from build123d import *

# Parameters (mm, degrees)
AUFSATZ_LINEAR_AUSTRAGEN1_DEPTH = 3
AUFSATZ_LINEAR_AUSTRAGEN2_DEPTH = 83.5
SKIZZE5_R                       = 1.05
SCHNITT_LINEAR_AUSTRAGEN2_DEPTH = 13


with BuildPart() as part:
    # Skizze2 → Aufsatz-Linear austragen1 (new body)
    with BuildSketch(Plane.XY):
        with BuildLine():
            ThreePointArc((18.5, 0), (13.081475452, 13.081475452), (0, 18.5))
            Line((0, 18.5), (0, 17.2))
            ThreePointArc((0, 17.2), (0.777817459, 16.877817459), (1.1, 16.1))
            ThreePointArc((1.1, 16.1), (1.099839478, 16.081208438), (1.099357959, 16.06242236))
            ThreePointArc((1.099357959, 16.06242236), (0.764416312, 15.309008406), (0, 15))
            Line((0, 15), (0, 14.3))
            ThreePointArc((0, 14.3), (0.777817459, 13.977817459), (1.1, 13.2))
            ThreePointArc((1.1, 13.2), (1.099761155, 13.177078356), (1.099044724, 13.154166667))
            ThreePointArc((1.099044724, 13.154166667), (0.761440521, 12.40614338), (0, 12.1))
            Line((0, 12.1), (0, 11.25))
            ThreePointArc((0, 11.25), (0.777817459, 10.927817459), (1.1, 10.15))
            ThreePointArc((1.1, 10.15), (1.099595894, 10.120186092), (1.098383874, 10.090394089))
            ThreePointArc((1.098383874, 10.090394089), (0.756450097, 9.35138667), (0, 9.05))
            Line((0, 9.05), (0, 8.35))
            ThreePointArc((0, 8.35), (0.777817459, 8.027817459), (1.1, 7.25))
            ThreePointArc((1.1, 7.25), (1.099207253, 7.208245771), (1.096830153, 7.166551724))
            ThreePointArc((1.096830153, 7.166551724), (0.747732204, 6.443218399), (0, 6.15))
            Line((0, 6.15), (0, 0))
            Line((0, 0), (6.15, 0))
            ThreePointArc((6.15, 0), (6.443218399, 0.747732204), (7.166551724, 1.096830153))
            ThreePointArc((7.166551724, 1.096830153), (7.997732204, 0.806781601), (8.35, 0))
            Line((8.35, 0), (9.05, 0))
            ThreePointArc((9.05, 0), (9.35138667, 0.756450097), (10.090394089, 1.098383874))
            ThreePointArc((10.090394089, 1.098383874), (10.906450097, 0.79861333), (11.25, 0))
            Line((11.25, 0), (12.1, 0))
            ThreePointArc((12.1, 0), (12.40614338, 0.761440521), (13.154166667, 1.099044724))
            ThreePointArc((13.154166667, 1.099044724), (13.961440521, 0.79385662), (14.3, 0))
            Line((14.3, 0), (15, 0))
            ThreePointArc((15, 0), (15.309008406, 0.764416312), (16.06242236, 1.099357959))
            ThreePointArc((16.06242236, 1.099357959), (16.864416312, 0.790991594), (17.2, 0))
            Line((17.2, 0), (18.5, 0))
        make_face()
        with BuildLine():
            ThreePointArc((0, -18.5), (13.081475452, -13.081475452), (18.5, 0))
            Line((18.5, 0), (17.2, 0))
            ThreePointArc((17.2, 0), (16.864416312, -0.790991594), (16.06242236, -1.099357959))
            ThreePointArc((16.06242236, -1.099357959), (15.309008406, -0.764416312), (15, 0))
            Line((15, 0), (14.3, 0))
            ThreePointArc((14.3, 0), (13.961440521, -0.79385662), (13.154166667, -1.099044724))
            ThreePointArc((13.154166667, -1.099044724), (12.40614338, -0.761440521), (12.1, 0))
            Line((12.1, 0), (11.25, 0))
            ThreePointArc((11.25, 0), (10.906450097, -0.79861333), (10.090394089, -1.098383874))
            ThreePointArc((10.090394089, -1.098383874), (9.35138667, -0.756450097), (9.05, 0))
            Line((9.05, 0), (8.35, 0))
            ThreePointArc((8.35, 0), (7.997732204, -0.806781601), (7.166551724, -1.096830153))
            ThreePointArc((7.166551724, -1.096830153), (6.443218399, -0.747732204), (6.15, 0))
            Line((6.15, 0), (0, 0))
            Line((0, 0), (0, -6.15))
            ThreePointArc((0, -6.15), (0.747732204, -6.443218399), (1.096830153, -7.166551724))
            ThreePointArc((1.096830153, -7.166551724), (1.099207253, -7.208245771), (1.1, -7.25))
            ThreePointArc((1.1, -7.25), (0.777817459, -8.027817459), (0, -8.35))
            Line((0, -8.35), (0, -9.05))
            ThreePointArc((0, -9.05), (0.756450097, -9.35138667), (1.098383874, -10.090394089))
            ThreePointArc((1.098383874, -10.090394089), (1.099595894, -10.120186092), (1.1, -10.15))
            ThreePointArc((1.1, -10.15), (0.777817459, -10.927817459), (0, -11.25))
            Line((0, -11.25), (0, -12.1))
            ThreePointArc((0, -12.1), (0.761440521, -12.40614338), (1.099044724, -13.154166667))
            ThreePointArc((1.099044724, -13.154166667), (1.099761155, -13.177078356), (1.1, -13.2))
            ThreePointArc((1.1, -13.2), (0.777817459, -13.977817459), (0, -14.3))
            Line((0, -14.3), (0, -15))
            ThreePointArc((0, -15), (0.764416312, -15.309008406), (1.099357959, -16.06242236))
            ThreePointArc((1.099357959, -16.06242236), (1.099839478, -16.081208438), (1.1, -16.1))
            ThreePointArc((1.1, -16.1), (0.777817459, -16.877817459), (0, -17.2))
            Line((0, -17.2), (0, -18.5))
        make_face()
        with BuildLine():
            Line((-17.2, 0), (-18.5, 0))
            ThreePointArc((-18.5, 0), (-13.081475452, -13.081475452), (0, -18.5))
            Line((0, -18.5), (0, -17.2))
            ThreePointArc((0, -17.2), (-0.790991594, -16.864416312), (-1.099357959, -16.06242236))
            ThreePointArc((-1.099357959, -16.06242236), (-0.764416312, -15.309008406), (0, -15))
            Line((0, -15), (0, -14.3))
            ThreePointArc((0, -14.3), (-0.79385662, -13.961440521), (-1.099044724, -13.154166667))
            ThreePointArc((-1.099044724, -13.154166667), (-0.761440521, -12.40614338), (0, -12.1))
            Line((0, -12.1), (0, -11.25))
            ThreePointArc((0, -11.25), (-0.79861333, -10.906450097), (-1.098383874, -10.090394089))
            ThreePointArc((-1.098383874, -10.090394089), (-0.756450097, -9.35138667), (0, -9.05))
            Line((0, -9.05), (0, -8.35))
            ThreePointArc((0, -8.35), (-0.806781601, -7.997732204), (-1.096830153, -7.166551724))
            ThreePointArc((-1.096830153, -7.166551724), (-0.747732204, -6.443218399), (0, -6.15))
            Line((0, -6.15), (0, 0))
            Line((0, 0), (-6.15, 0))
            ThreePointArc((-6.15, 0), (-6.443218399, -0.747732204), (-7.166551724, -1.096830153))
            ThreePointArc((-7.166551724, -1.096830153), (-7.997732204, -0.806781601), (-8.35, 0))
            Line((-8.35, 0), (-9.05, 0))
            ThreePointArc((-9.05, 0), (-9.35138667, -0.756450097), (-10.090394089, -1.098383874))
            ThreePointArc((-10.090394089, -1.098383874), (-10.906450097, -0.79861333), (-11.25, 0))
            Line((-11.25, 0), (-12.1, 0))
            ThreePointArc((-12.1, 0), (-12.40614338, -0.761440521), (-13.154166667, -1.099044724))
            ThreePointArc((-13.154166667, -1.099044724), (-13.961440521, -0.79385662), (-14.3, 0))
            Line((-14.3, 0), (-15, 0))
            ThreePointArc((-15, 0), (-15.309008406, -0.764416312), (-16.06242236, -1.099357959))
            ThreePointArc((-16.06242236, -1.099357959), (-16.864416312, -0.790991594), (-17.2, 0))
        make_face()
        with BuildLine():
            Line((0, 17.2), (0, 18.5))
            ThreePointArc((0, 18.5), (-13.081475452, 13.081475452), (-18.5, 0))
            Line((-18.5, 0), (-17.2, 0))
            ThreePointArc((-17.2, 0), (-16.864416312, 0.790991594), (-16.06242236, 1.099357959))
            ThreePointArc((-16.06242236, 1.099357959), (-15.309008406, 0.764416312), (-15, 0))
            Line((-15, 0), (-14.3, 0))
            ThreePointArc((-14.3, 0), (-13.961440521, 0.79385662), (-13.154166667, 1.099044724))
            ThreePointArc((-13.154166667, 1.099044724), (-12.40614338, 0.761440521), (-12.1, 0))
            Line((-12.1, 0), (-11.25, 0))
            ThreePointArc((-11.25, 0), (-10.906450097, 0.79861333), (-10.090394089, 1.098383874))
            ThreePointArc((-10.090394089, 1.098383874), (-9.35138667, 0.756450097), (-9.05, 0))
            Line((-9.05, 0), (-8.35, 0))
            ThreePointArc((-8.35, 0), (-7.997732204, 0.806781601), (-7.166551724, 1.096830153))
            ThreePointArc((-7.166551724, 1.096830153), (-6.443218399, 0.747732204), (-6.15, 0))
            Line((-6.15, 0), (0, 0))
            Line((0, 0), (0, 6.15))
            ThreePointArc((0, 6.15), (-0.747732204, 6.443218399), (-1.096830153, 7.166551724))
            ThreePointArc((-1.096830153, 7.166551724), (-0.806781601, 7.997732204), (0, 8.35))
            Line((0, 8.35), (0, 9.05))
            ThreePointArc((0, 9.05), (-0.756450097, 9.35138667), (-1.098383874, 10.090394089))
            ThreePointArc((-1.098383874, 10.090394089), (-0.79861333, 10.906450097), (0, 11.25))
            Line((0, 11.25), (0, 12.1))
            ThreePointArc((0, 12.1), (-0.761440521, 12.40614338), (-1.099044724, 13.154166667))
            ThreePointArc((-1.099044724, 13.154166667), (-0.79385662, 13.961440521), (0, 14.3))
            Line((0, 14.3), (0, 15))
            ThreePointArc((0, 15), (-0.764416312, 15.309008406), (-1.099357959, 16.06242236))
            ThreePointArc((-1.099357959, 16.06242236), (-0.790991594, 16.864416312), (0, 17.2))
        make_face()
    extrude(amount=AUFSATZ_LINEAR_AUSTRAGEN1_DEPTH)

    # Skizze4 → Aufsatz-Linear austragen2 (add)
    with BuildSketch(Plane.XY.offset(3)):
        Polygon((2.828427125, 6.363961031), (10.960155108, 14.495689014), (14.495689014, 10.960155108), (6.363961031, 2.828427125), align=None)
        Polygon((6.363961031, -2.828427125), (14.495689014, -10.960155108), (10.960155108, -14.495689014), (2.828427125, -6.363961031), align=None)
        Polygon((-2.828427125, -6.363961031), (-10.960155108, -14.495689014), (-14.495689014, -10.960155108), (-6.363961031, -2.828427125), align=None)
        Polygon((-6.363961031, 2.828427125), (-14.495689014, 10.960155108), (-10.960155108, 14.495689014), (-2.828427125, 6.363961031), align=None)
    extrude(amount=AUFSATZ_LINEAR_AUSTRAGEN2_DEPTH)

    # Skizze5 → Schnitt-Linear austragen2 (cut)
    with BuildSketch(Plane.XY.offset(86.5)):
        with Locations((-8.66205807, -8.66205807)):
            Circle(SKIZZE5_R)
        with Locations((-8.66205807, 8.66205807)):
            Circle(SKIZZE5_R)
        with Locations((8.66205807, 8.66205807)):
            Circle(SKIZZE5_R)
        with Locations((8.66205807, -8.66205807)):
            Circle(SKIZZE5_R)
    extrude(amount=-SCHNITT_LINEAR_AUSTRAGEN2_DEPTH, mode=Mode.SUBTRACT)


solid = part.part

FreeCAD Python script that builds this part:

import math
import FreeCAD as App
import Part
import Sketcher
from FreeCAD import Vector


def add_polygon(sketch, points):
    """Adds a closed chain of lines whose ends are joined by coincident constraints."""
    first, n = sketch.GeometryCount, len(points)
    for a, b in zip(points, points[1:] + points[:1]):
        sketch.addGeometry(Part.LineSegment(App.Vector(*a, 0), App.Vector(*b, 0)), False)
    for i in range(n):
        sketch.addConstraint(Sketcher.Constraint("Coincident", first + i, 2, first + (i + 1) % n, 1))

doc = App.newDocument("Part")
body = doc.addObject("PartDesign::Body", "Body")

sketch1 = body.newObject("Sketcher::SketchObject", "Sketch")
sketch1.AttachmentSupport = (doc.getObject("XY_Plane"), [""])
sketch1.MapMode = "FlatFace"
sketch1.addGeometry([
    Part.ArcOfCircle(Part.Circle(Vector(0, 0, 0), Vector(0, 0, 1), 18.5), math.radians(0), math.radians(90)),
    Part.ArcOfCircle(Part.Circle(Vector(0, 0, 0), Vector(0, 0, 1), 18.5), math.radians(90), math.radians(180)),
    Part.ArcOfCircle(Part.Circle(Vector(0, 0, 0), Vector(0, 0, 1), 18.5), math.radians(180), math.radians(270)),
    Part.ArcOfCircle(Part.Circle(Vector(0, 0, 0), Vector(0, 0, 1), 18.5), math.radians(-90), math.radians(0)),
    Part.ArcOfCircle(Part.Circle(Vector(0, 16.1, 0), Vector(0, 0, 1), 1.1), math.radians(0), math.radians(90)),
    Part.ArcOfCircle(Part.Circle(Vector(-0.000001, 16.1, 0), Vector(0, 0, 1), 1.100001), math.radians(-1.957688), math.radians(0)),
    Part.ArcOfCircle(Part.Circle(Vector(0, 16.1, 0), Vector(0, 0, 1), 1.1), math.radians(-90), math.radians(-1.95769)),
    Part.ArcOfCircle(Part.Circle(Vector(0, 16.1, 0), Vector(0, 0, 1), 1.1), math.radians(-178.04231), math.radians(-90)),
    Part.ArcOfCircle(Part.Circle(Vector(0, 16.1, 0), Vector(0, 0, 1), 1.1), math.radians(90), math.radians(181.95769)),
    Part.ArcOfCircle(Part.Circle(Vector(0, 13.2, 0), Vector(0, 0, 1), 1.1), math.radians(0), math.radians(90)),
    Part.ArcOfCircle(Part.Circle(Vector(0, 13.2, 0), Vector(0, 0, 1), 1.1), math.radians(-2.388015), math.radians(0)),
    Part.ArcOfCircle(Part.Circle(Vector(0, 13.2, 0), Vector(0, 0, 1), 1.1), math.radians(-90), math.radians(-2.388015)),
    Part.ArcOfCircle(Part.Circle(Vector(0, 13.2, 0), Vector(0, 0, 1), 1.1), math.radians(-177.611985), math.radians(-90)),
    Part.ArcOfCircle(Part.Circle(Vector(0, 13.2, 0), Vector(0, 0, 1), 1.1), math.radians(90), math.radians(182.388015)),
    Part.ArcOfCircle(Part.Circle(Vector(0, 10.15, 0), Vector(0, 0, 1), 1.1), math.radians(0), math.radians(90)),
    Part.ArcOfCircle(Part.Circle(Vector(-0.000001, 10.15, 0), Vector(0, 0, 1), 1.100001), math.radians(-3.106218), math.radians(-0.000001)),
    Part.ArcOfCircle(Part.Circle(Vector(0, 10.15, 0), Vector(0, 0, 1), 1.1), math.radians(-90), math.radians(-3.106219)),
    Part.ArcOfCircle(Part.Circle(Vector(0, 10.15, 0), Vector(0, 0, 1), 1.1), math.radians(-176.893781), math.radians(-90)),
    Part.ArcOfCircle(Part.Circle(Vector(0, 10.15, 0), Vector(0, 0, 1), 1.1), math.radians(90), math.radians(183.106219)),
    Part.ArcOfCircle(Part.Circle(Vector(0, 7.25, 0), Vector(0, 0, 1), 1.1), math.radians(0), math.radians(90)),
    Part.ArcOfCircle(Part.Circle(Vector(0.000001, 7.25, 0), Vector(0, 0, 1), 1.099999), math.radians(-4.350758), math.radians(0.000001)),
    Part.ArcOfCircle(Part.Circle(Vector(0, 7.25, 0), Vector(0, 0, 1), 1.1), math.radians(-90), math.radians(-4.350756)),
    Part.ArcOfCircle(Part.Circle(Vector(0, 7.25, 0), Vector(0, 0, 1), 1.1), math.radians(-175.649244), math.radians(-90)),
    Part.ArcOfCircle(Part.Circle(Vector(0, 7.25, 0), Vector(0, 0, 1), 1.1), math.radians(90), math.radians(184.350756)),
    Part.ArcOfCircle(Part.Circle(Vector(-7.25, 0, 0), Vector(0, 0, 1), 1.1), math.radians(-85.649244), math.radians(0)),
    Part.ArcOfCircle(Part.Circle(Vector(-7.25, 0, 0), Vector(0, 0, 1), 1.1), math.radians(180), math.radians(274.350756)),
    Part.ArcOfCircle(Part.Circle(Vector(-7.25, 0, 0), Vector(0, 0, 1), 1.1), math.radians(85.649244), math.radians(180)),
    Part.ArcOfCircle(Part.Circle(Vector(-7.25, 0, 0), Vector(0, 0, 1), 1.1), math.radians(0), math.radians(85.649244)),
    Part.ArcOfCircle(Part.Circle(Vector(-10.15, 0, 0), Vector(0, 0, 1), 1.1), math.radians(-86.893781), math.radians(0)),
    Part.ArcOfCircle(Part.Circle(Vector(-10.15, 0, 0), Vector(0, 0, 1), 1.1), math.radians(180), math.radians(273.106219)),
    Part.ArcOfCircle(Part.Circle(Vector(-10.15, 0, 0), Vector(0, 0, 1), 1.1), math.radians(86.893781), math.radians(180)),
    Part.ArcOfCircle(Part.Circle(Vector(-10.15, 0, 0), Vector(0, 0, 1), 1.1), math.radians(0), math.radians(86.893781)),
    Part.ArcOfCircle(Part.Circle(Vector(-13.2, 0, 0), Vector(0, 0, 1), 1.1), math.radians(-87.611985), math.radians(0)),
    Part.ArcOfCircle(Part.Circle(Vector(-13.2, 0, 0), Vector(0, 0, 1), 1.1), math.radians(180), math.radians(272.388015)),
    Part.ArcOfCircle(Part.Circle(Vector(-13.2, 0, 0), Vector(0, 0, 1), 1.1), math.radians(87.611985), math.radians(180)),
    Part.ArcOfCircle(Part.Circle(Vector(-13.2, 0, 0), Vector(0, 0, 1), 1.1), math.radians(0), math.radians(87.611985)),
    Part.ArcOfCircle(Part.Circle(Vector(-16.1, 0, 0), Vector(0, 0, 1), 1.1), math.radians(-88.04231), math.radians(0)),
    Part.ArcOfCircle(Part.Circle(Vector(-16.1, 0, 0), Vector(0, 0, 1), 1.1), math.radians(-180), math.radians(-88.04231)),
    Part.ArcOfCircle(Part.Circle(Vector(-16.1, 0, 0), Vector(0, 0, 1), 1.1), math.radians(88.04231), math.radians(180)),
    Part.ArcOfCircle(Part.Circle(Vector(-16.1, 0, 0), Vector(0, 0, 1), 1.1), math.radians(0), math.radians(88.04231)),
    Part.ArcOfCircle(Part.Circle(Vector(0, -7.25, 0), Vector(0, 0, 1), 1.1), math.radians(4.350756), math.radians(90)),
    Part.ArcOfCircle(Part.Circle(Vector(0.000001, -7.25, 0), Vector(0, 0, 1), 1.099999), math.radians(-0.000001), math.radians(4.350758)),
    Part.ArcOfCircle(Part.Circle(Vector(0, -7.25, 0), Vector(0, 0, 1), 1.1), math.radians(-90), math.radians(0)),
    Part.ArcOfCircle(Part.Circle(Vector(0, -7.25, 0), Vector(0, 0, 1), 1.1), math.radians(175.649244), math.radians(270)),
    Part.ArcOfCircle(Part.Circle(Vector(0, -7.25, 0), Vector(0, 0, 1), 1.1), math.radians(90), math.radians(175.649244)),
    Part.ArcOfCircle(Part.Circle(Vector(0, -10.15, 0), Vector(0, 0, 1), 1.1), math.radians(3.106219), math.radians(90)),
    Part.ArcOfCircle(Part.Circle(Vector(-0.000001, -10.15, 0), Vector(0, 0, 1), 1.100001), math.radians(0.000001), math.radians(3.106218)),
    Part.ArcOfCircle(Part.Circle(Vector(0, -10.15, 0), Vector(0, 0, 1), 1.1), math.radians(-90), math.radians(0)),
    Part.ArcOfCircle(Part.Circle(Vector(0, -10.15, 0), Vector(0, 0, 1), 1.1), math.radians(176.893781), math.radians(270)),
    Part.ArcOfCircle(Part.Circle(Vector(0, -10.15, 0), Vector(0, 0, 1), 1.1), math.radians(90), math.radians(176.893781)),
    Part.ArcOfCircle(Part.Circle(Vector(0, -13.2, 0), Vector(0, 0, 1), 1.1), math.radians(2.388015), math.radians(90)),
    Part.ArcOfCircle(Part.Circle(Vector(0, -13.2, 0), Vector(0, 0, 1), 1.1), math.radians(0), math.radians(2.388015)),
    Part.ArcOfCircle(Part.Circle(Vector(0, -13.2, 0), Vector(0, 0, 1), 1.1), math.radians(-90), math.radians(0)),
    Part.ArcOfCircle(Part.Circle(Vector(0, -13.2, 0), Vector(0, 0, 1), 1.1), math.radians(177.611985), math.radians(270)),
    Part.ArcOfCircle(Part.Circle(Vector(0, -13.2, 0), Vector(0, 0, 1), 1.1), math.radians(90), math.radians(177.611985)),
    Part.ArcOfCircle(Part.Circle(Vector(0, -16.1, 0), Vector(0, 0, 1), 1.1), math.radians(1.95769), math.radians(90)),
    Part.ArcOfCircle(Part.Circle(Vector(-0.000001, -16.1, 0), Vector(0, 0, 1), 1.100001), math.radians(0), math.radians(1.957688)),
    Part.ArcOfCircle(Part.Circle(Vector(0, -16.1, 0), Vector(0, 0, 1), 1.1), math.radians(-90), math.radians(0)),
    Part.ArcOfCircle(Part.Circle(Vector(0, -16.1, 0), Vector(0, 0, 1), 1.1), math.radians(178.04231), math.radians(270)),
    Part.ArcOfCircle(Part.Circle(Vector(0, -16.1, 0), Vector(0, 0, 1), 1.1), math.radians(90), math.radians(178.04231)),
    Part.ArcOfCircle(Part.Circle(Vector(7.25, 0, 0), Vector(0, 0, 1), 1.1), math.radians(94.350756), math.radians(180)),
    Part.ArcOfCircle(Part.Circle(Vector(7.25, 0, 0), Vector(0, 0, 1), 1.1), math.radians(0), math.radians(94.350756)),
    Part.ArcOfCircle(Part.Circle(Vector(7.25, 0, 0), Vector(0, 0, 1), 1.1), math.radians(-94.350756), math.radians(0)),
    Part.ArcOfCircle(Part.Circle(Vector(7.25, 0, 0), Vector(0, 0, 1), 1.1), math.radians(180), math.radians(265.649244)),
    Part.ArcOfCircle(Part.Circle(Vector(10.15, 0, 0), Vector(0, 0, 1), 1.1), math.radians(93.106219), math.radians(180)),
    Part.ArcOfCircle(Part.Circle(Vector(10.15, 0, 0), Vector(0, 0, 1), 1.1), math.radians(0), math.radians(93.106219)),
    Part.ArcOfCircle(Part.Circle(Vector(10.15, 0, 0), Vector(0, 0, 1), 1.1), math.radians(-93.106219), math.radians(0)),
    Part.ArcOfCircle(Part.Circle(Vector(10.15, 0, 0), Vector(0, 0, 1), 1.1), math.radians(180), math.radians(266.893781)),
    Part.ArcOfCircle(Part.Circle(Vector(13.2, 0, 0), Vector(0, 0, 1), 1.1), math.radians(92.388015), math.radians(180)),
    Part.ArcOfCircle(Part.Circle(Vector(13.2, 0, 0), Vector(0, 0, 1), 1.1), math.radians(0), math.radians(92.388015)),
    Part.ArcOfCircle(Part.Circle(Vector(13.2, 0, 0), Vector(0, 0, 1), 1.1), math.radians(-92.388015), math.radians(0)),
    Part.ArcOfCircle(Part.Circle(Vector(13.2, 0, 0), Vector(0, 0, 1), 1.1), math.radians(180), math.radians(267.611985)),
    Part.ArcOfCircle(Part.Circle(Vector(16.1, 0, 0), Vector(0, 0, 1), 1.1), math.radians(91.95769), math.radians(180)),
    Part.ArcOfCircle(Part.Circle(Vector(16.1, 0, 0), Vector(0, 0, 1), 1.1), math.radians(0), math.radians(91.95769)),
    Part.ArcOfCircle(Part.Circle(Vector(16.1, 0, 0), Vector(0, 0, 1), 1.1), math.radians(-91.95769), math.radians(0)),
    Part.ArcOfCircle(Part.Circle(Vector(16.1, 0, 0), Vector(0, 0, 1), 1.1), math.radians(-180), math.radians(-91.95769)),
], False)
sketch1.addConstraint([
    Sketcher.Constraint("Tangent", 0, 2, 1, 1),
    Sketcher.Constraint("Tangent", 1, 2, 2, 1),
    Sketcher.Constraint("Tangent", 2, 2, 3, 1),
    Sketcher.Constraint("Tangent", 3, 2, 0, 1),
    Sketcher.Constraint("Tangent", 4, 1, 5, 2),
    Sketcher.Constraint("Tangent", 5, 1, 6, 2),
    Sketcher.Constraint("Tangent", 6, 1, 7, 2),
    Sketcher.Constraint("Tangent", 7, 1, 8, 2),
    Sketcher.Constraint("Tangent", 8, 1, 4, 2),
    Sketcher.Constraint("Tangent", 9, 1, 10, 2),
    Sketcher.Constraint("Tangent", 10, 1, 11, 2),
    Sketcher.Constraint("Tangent", 11, 1, 12, 2),
    Sketcher.Constraint("Tangent", 12, 1, 13, 2),
    Sketcher.Constraint("Tangent", 13, 1, 9, 2),
    Sketcher.Constraint("Tangent", 14, 1, 15, 2),
    Sketcher.Constraint("Tangent", 15, 1, 16, 2),
    Sketcher.Constraint("Tangent", 16, 1, 17, 2),
    Sketcher.Constraint("Tangent", 17, 1, 18, 2),
    Sketcher.Constraint("Tangent", 18, 1, 14, 2),
    Sketcher.Constraint("Tangent", 19, 1, 20, 2),
    Sketcher.Constraint("Tangent", 20, 1, 21, 2),
    Sketcher.Constraint("Tangent", 21, 1, 22, 2),
    Sketcher.Constraint("Tangent", 22, 1, 23, 2),
    Sketcher.Constraint("Tangent", 23, 1, 19, 2),
    Sketcher.Constraint("Tangent", 24, 1, 25, 2),
    Sketcher.Constraint("Tangent", 25, 1, 26, 2),
    Sketcher.Constraint("Tangent", 26, 1, 27, 2),
    Sketcher.Constraint("Tangent", 27, 1, 24, 2),
    Sketcher.Constraint("Tangent", 28, 1, 29, 2),
    Sketcher.Constraint("Tangent", 29, 1, 30, 2),
    Sketcher.Constraint("Tangent", 30, 1, 31, 2),
    Sketcher.Constraint("Tangent", 31, 1, 28, 2),
    Sketcher.Constraint("Tangent", 32, 1, 33, 2),
    Sketcher.Constraint("Tangent", 33, 1, 34, 2),
    Sketcher.Constraint("Tangent", 34, 1, 35, 2),
    Sketcher.Constraint("Tangent", 35, 1, 32, 2),
    Sketcher.Constraint("Tangent", 36, 1, 37, 2),
    Sketcher.Constraint("Tangent", 37, 1, 38, 2),
    Sketcher.Constraint("Tangent", 38, 1, 39, 2),
    Sketcher.Constraint("Tangent", 39, 1, 36, 2),
    Sketcher.Constraint("Tangent", 40, 1, 41, 2),
    Sketcher.Constraint("Tangent", 41, 1, 42, 2),
    Sketcher.Constraint("Tangent", 42, 1, 43, 2),
    Sketcher.Constraint("Tangent", 43, 1, 44, 2),
    Sketcher.Constraint("Tangent", 44, 1, 40, 2),
    Sketcher.Constraint("Tangent", 45, 1, 46, 2),
    Sketcher.Constraint("Tangent", 46, 1, 47, 2),
    Sketcher.Constraint("Tangent", 47, 1, 48, 2),
    Sketcher.Constraint("Tangent", 48, 1, 49, 2),
    Sketcher.Constraint("Tangent", 49, 1, 45, 2),
    Sketcher.Constraint("Tangent", 50, 1, 51, 2),
    Sketcher.Constraint("Tangent", 51, 1, 52, 2),
    Sketcher.Constraint("Tangent", 52, 1, 53, 2),
    Sketcher.Constraint("Tangent", 53, 1, 54, 2),
    Sketcher.Constraint("Tangent", 54, 1, 50, 2),
    Sketcher.Constraint("Tangent", 55, 1, 56, 2),
    Sketcher.Constraint("Tangent", 56, 1, 57, 2),
    Sketcher.Constraint("Tangent", 57, 1, 58, 2),
    Sketcher.Constraint("Tangent", 58, 1, 59, 2),
    Sketcher.Constraint("Tangent", 59, 1, 55, 2),
    Sketcher.Constraint("Tangent", 60, 1, 61, 2),
    Sketcher.Constraint("Tangent", 61, 1, 62, 2),
    Sketcher.Constraint("Tangent", 62, 1, 63, 2),
    Sketcher.Constraint("Tangent", 63, 1, 60, 2),
    Sketcher.Constraint("Tangent", 64, 1, 65, 2),
    Sketcher.Constraint("Tangent", 65, 1, 66, 2),
    Sketcher.Constraint("Tangent", 66, 1, 67, 2),
    Sketcher.Constraint("Tangent", 67, 1, 64, 2),
    Sketcher.Constraint("Tangent", 68, 1, 69, 2),
    Sketcher.Constraint("Tangent", 69, 1, 70, 2),
    Sketcher.Constraint("Tangent", 70, 1, 71, 2),
    Sketcher.Constraint("Tangent", 71, 1, 68, 2),
    Sketcher.Constraint("Tangent", 72, 1, 73, 2),
    Sketcher.Constraint("Tangent", 73, 1, 74, 2),
    Sketcher.Constraint("Tangent", 74, 1, 75, 2),
    Sketcher.Constraint("Tangent", 75, 1, 72, 2),
    Sketcher.Constraint("Coincident", 0, 3, -1, 1),
    Sketcher.Constraint("Coincident", 6, 3, 4, 3),
    Sketcher.Constraint("Coincident", 11, 3, 9, 3),
    Sketcher.Constraint("Coincident", 16, 3, 14, 3),
    Sketcher.Constraint("Coincident", 21, 3, 19, 3),
    Sketcher.Constraint("Coincident", 42, 3, 40, 3),
    Sketcher.Constraint("Coincident", 47, 3, 45, 3),
    Sketcher.Constraint("Coincident", 52, 3, 50, 3),
    Sketcher.Constraint("Coincident", 57, 3, 55, 3),
    Sketcher.Constraint("Equal", 0, 1),
    Sketcher.Constraint("Equal", 8, 9),
    Sketcher.Constraint("Equal", 13, 14),
    Sketcher.Constraint("Equal", 18, 19),
    Sketcher.Constraint("Equal", 23, 24),
    Sketcher.Constraint("Equal", 24, 25),
    Sketcher.Constraint("Equal", 27, 28),
    Sketcher.Constraint("Equal", 28, 29),
    Sketcher.Constraint("Equal", 31, 32),
    Sketcher.Constraint("Equal", 32, 33),
    Sketcher.Constraint("Equal", 35, 36),
    Sketcher.Constraint("Equal", 36, 37),
    Sketcher.Constraint("Equal", 39, 40),
    Sketcher.Constraint("Equal", 44, 45),
    Sketcher.Constraint("Equal", 49, 50),
    Sketcher.Constraint("Equal", 54, 55),
    Sketcher.Constraint("Equal", 59, 60),
    Sketcher.Constraint("Equal", 60, 61),
    Sketcher.Constraint("Equal", 63, 64),
    Sketcher.Constraint("Equal", 64, 65),
    Sketcher.Constraint("Equal", 67, 68),
    Sketcher.Constraint("Equal", 68, 69),
    Sketcher.Constraint("Equal", 71, 72),
    Sketcher.Constraint("Equal", 72, 73),
    Sketcher.Constraint("Symmetric", 19, 3, 40, 3, -1, 1),
    Sketcher.Constraint("Symmetric", 14, 3, 45, 3, -1, 1),
    Sketcher.Constraint("Symmetric", 9, 3, 50, 3, -1, 1),
    Sketcher.Constraint("Symmetric", 4, 3, 55, 3, -1, 1),
    Sketcher.Constraint("Symmetric", 24, 3, 60, 3, -1, 1),
    Sketcher.Constraint("Symmetric", 28, 3, 64, 3, -1, 1),
    Sketcher.Constraint("Symmetric", 32, 3, 68, 3, -1, 1),
    Sketcher.Constraint("Symmetric", 36, 3, 72, 3, -1, 1),
    Sketcher.Constraint("Symmetric", 5, 1, 7, 1, -2),
    Sketcher.Constraint("Symmetric", 10, 1, 12, 1, -2),
    Sketcher.Constraint("Symmetric", 15, 1, 17, 1, -2),
    Sketcher.Constraint("Symmetric", 20, 1, 22, 1, -2),
    Sketcher.Constraint("Symmetric", 26, 1, 60, 1, -2),
    Sketcher.Constraint("Symmetric", 30, 1, 64, 1, -2),
    Sketcher.Constraint("Symmetric", 34, 1, 68, 1, -2),
    Sketcher.Constraint("Symmetric", 38, 1, 72, 1, -2),
    Sketcher.Constraint("PointOnObject", 0, 2, -2),
    Sketcher.Constraint("PointOnObject", 1, 2, -1),
    Sketcher.Constraint("PointOnObject", 2, 2, -2),
    Sketcher.Constraint("PointOnObject", 3, 2, -1),
    Sketcher.Constraint("PointOnObject", 6, 1, -2),
    Sketcher.Constraint("PointOnObject", 8, 1, -2),
    Sketcher.Constraint("PointOnObject", 11, 1, -2),
    Sketcher.Constraint("PointOnObject", 13, 1, -2),
    Sketcher.Constraint("PointOnObject", 16, 1, -2),
    Sketcher.Constraint("PointOnObject", 18, 1, -2),
    Sketcher.Constraint("PointOnObject", 21, 1, -2),
    Sketcher.Constraint("PointOnObject", 23, 1, -2),
    Sketcher.Constraint("PointOnObject", 25, 1, -1),
    Sketcher.Constraint("PointOnObject", 27, 1, -1),
    Sketcher.Constraint("PointOnObject", 29, 1, -1),
    Sketcher.Constraint("PointOnObject", 31, 1, -1),
    Sketcher.Constraint("PointOnObject", 33, 1, -1),
    Sketcher.Constraint("PointOnObject", 35, 1, -1),
    Sketcher.Constraint("PointOnObject", 37, 1, -1),
    Sketcher.Constraint("PointOnObject", 39, 1, -1),
    Sketcher.Constraint("PointOnObject", 42, 1, -2),
    Sketcher.Constraint("PointOnObject", 44, 1, -2),
    Sketcher.Constraint("PointOnObject", 47, 1, -2),
    Sketcher.Constraint("PointOnObject", 49, 1, -2),
    Sketcher.Constraint("PointOnObject", 52, 1, -2),
    Sketcher.Constraint("PointOnObject", 54, 1, -2),
    Sketcher.Constraint("PointOnObject", 57, 1, -2),
    Sketcher.Constraint("PointOnObject", 59, 1, -2),
    Sketcher.Constraint("PointOnObject", 61, 1, -1),
    Sketcher.Constraint("PointOnObject", 63, 1, -1),
    Sketcher.Constraint("PointOnObject", 65, 1, -1),
    Sketcher.Constraint("PointOnObject", 67, 1, -1),
    Sketcher.Constraint("PointOnObject", 69, 1, -1),
    Sketcher.Constraint("PointOnObject", 71, 1, -1),
    Sketcher.Constraint("PointOnObject", 73, 1, -1),
    Sketcher.Constraint("PointOnObject", 75, 1, -1),
    Sketcher.Constraint("Horizontal", 8, 3, 4, 1),
    Sketcher.Constraint("Horizontal", 13, 3, 9, 1),
    Sketcher.Constraint("Horizontal", 18, 3, 14, 1),
    Sketcher.Constraint("Horizontal", 23, 3, 19, 1),
    Sketcher.Constraint("Horizontal", 44, 3, 41, 1),
    Sketcher.Constraint("Horizontal", 40, 1, 43, 1),
    Sketcher.Constraint("Horizontal", 49, 3, 46, 1),
    Sketcher.Constraint("Horizontal", 45, 1, 48, 1),
    Sketcher.Constraint("Horizontal", 54, 3, 51, 1),
    Sketcher.Constraint("Horizontal", 50, 1, 53, 1),
    Sketcher.Constraint("Horizontal", 59, 3, 56, 1),
    Sketcher.Constraint("Horizontal", 55, 1, 58, 1),
    Sketcher.Constraint("Horizontal", 24, 1, 62, 1),
    Sketcher.Constraint("Horizontal", 28, 1, 66, 1),
    Sketcher.Constraint("Horizontal", 32, 1, 70, 1),
    Sketcher.Constraint("Horizontal", 36, 1, 74, 1),
    Sketcher.Constraint("Vertical", 24, 1, 26, 1),
    Sketcher.Constraint("Vertical", 28, 1, 30, 1),
    Sketcher.Constraint("Vertical", 32, 1, 34, 1),
    Sketcher.Constraint("Vertical", 36, 1, 38, 1),
    Sketcher.Constraint("Vertical", 20, 1, 40, 1),
    Sketcher.Constraint("Vertical", 15, 1, 45, 1),
    Sketcher.Constraint("Vertical", 10, 1, 50, 1),
    Sketcher.Constraint("Vertical", 5, 1, 55, 1),
    Sketcher.Constraint("Radius", 0, 18.5),
    Sketcher.Constraint("Radius", 4, 1.1),
    Sketcher.Constraint("DistanceY", -1, 1, 6, 1, 15.0),
    Sketcher.Constraint("DistanceX", 39, 1, -1, 1, 15.0),
    Sketcher.Constraint("DistanceY", -1, 1, 9, 3, 13.2),
    Sketcher.Constraint("DistanceX", 32, 3, -1, 1, 13.2),
    Sketcher.Constraint("DistanceY", -1, 1, 14, 3, 10.15),
    Sketcher.Constraint("DistanceY", -1, 1, 19, 3, 7.25),
    Sketcher.Constraint("DistanceX", 24, 3, -1, 1, 7.25),
    Sketcher.Constraint("DistanceX", 28, 3, -1, 1, 10.15),
    Sketcher.Constraint("DistanceX", -1, 1, 20, 1, 1.09683),
    Sketcher.Constraint("DistanceX", 24, 1, -1, 1, 7.166552),
    Sketcher.Constraint("DistanceX", -1, 1, 5, 1, 1.099358),
    Sketcher.Constraint("DistanceX", -1, 1, 10, 1, 1.099045),
    Sketcher.Constraint("DistanceX", -1, 1, 15, 1, 1.098384),
    Sketcher.Constraint("DistanceX", 28, 1, -1, 1, 10.090394),
    Sketcher.Constraint("DistanceX", 32, 1, -1, 1, 13.154167),
    Sketcher.Constraint("DistanceX", 36, 1, -1, 1, 16.062422),
])
pad1 = body.newObject("PartDesign::Pad", "Pad")
pad1.Profile = sketch1
pad1.Length = 3

sketch2 = body.newObject("Sketcher::SketchObject", "Sketch001")
sketch2.AttachmentSupport = (doc.getObject("XY_Plane"), [""])
sketch2.MapMode = "FlatFace"
sketch2.AttachmentOffset = App.Placement(Vector(0, 0, 3), App.Rotation())
add_polygon(sketch2, [(10.960155, 14.495689), (2.828427, 6.363961), (6.363961, 2.828427), (14.495689, 10.960155)])
add_polygon(sketch2, [(14.495689, -10.960155), (6.363961, -2.828427), (2.828427, -6.363961), (10.960155, -14.495689)])
add_polygon(sketch2, [(-10.960155, -14.495689), (-2.828427, -6.363961), (-6.363961, -2.828427), (-14.495689, -10.960155)])
add_polygon(sketch2, [(-14.495689, 10.960155), (-6.363961, 2.828427), (-2.828427, 6.363961), (-10.960155, 14.495689)])
sketch2.addConstraint([
    Sketcher.Constraint("Symmetric", 0, 2, 8, 2, -1, 1),
    Sketcher.Constraint("Symmetric", 1, 2, 9, 2, -1, 1),
    Sketcher.Constraint("Symmetric", 2, 2, 10, 2, -1, 1),
    Sketcher.Constraint("Symmetric", 3, 2, 11, 2, -1, 1),
    Sketcher.Constraint("Symmetric", 4, 2, 12, 2, -1, 1),
    Sketcher.Constraint("Symmetric", 5, 2, 13, 2, -1, 1),
    Sketcher.Constraint("Symmetric", 6, 2, 14, 2, -1, 1),
    Sketcher.Constraint("Symmetric", 7, 2, 15, 2, -1, 1),
    Sketcher.Constraint("Symmetric", 5, 2, 8, 2, -2),
    Sketcher.Constraint("Symmetric", 4, 2, 9, 2, -2),
    Sketcher.Constraint("Symmetric", 7, 2, 10, 2, -2),
    Sketcher.Constraint("Symmetric", 6, 2, 11, 2, -2),
    Sketcher.Constraint("Perpendicular", 0, 1),
    Sketcher.Constraint("Perpendicular", 1, 2),
    Sketcher.Constraint("Perpendicular", 2, 3),
    Sketcher.Constraint("Parallel", 3, 4),
    Sketcher.Constraint("Distance", 1, 5.0),
    Sketcher.Constraint("Distance", 0, 11.5),
    Sketcher.Constraint("DistanceY", -1, 1, 0, 2, 6.363961),
    Sketcher.Constraint("DistanceX", -1, 1, 1, 2, 6.363961),
])
pad2 = body.newObject("PartDesign::Pad", "Pad001")
pad2.Profile = sketch2
pad2.Length = 83.5

sketch3 = body.newObject("Sketcher::SketchObject", "Sketch002")
sketch3.AttachmentSupport = (doc.getObject("XY_Plane"), [""])
sketch3.MapMode = "FlatFace"
sketch3.AttachmentOffset = App.Placement(Vector(0, 0, 86.5), App.Rotation())
sketch3.addGeometry([
    Part.Circle(Vector(-8.662058, -8.662058, 0), Vector(0, 0, 1), 1.05),
    Part.Circle(Vector(-8.662058, 8.662058, 0), Vector(0, 0, 1), 1.05),
    Part.Circle(Vector(8.662058, 8.662058, 0), Vector(0, 0, 1), 1.05),
    Part.Circle(Vector(8.662058, -8.662058, 0), Vector(0, 0, 1), 1.05),
], False)
sketch3.addConstraint([
    Sketcher.Constraint("Equal", 0, 1),
    Sketcher.Constraint("Equal", 1, 2),
    Sketcher.Constraint("Equal", 2, 3),
    Sketcher.Constraint("Symmetric", 0, 3, 2, 3, -1, 1),
    Sketcher.Constraint("Symmetric", 1, 3, 3, 3, -1, 1),
    Sketcher.Constraint("Symmetric", 1, 3, 2, 3, -2),
    Sketcher.Constraint("Diameter", 0, 2.1),
    Sketcher.Constraint("DistanceX", 0, 3, -1, 1, 8.662058),
    Sketcher.Constraint("DistanceY", 0, 3, -1, 1, 8.662058),
])
pocket1 = body.newObject("PartDesign::Pocket", "Pocket")
pocket1.Profile = sketch3
pocket1.Length = 13

doc.recompute()
